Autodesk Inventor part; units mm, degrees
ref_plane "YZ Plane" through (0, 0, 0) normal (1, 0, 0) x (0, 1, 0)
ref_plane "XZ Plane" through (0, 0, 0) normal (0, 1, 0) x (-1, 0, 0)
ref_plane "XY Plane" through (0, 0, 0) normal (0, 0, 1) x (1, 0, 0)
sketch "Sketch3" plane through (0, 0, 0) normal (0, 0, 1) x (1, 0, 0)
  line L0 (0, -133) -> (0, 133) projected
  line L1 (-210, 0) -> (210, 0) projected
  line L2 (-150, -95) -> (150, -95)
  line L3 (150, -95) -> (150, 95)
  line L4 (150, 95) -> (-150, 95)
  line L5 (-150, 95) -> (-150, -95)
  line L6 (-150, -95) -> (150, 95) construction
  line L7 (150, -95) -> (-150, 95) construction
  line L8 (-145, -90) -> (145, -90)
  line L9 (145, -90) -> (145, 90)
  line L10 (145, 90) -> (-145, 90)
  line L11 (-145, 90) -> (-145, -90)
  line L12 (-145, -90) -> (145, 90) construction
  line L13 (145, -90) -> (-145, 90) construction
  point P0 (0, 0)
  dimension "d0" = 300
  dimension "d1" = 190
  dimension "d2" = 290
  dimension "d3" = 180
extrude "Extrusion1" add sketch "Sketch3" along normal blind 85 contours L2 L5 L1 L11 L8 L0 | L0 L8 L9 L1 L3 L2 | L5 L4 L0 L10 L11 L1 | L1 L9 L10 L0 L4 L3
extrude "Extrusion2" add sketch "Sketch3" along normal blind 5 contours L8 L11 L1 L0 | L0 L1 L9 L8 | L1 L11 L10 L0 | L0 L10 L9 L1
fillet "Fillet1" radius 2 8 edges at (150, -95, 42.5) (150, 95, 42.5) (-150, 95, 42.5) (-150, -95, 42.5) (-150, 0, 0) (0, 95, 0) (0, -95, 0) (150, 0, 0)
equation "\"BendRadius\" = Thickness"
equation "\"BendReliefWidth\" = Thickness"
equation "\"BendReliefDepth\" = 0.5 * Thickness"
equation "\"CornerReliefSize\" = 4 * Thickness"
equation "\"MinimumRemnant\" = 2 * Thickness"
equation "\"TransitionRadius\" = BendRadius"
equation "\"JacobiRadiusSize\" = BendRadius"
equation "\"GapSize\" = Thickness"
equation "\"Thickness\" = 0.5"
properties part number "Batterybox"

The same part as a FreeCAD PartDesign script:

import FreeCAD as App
import Part
import Sketcher
from FreeCAD import Vector
Q = App.Units.Quantity


def edges_at(feature, points):
    """Names of the edges that pass closest to the given points."""
    edges = feature.Shape.Edges
    near = lambda p: min(range(len(edges)), key=lambda i: edges[i].distToShape(Part.Vertex(*p))[0])
    return sorted({f"Edge{near(p) + 1}" for p in points})


def add_polygon(sketch, points):
    """Adds a closed chain of lines whose ends are joined by coincident constraints."""
    first, n = sketch.GeometryCount, len(points)
    for a, b in zip(points, points[1:] + points[:1]):
        sketch.addGeometry(Part.LineSegment(App.Vector(*a, 0), App.Vector(*b, 0)), False)
    for i in range(n):
        sketch.addConstraint(Sketcher.Constraint("Coincident", first + i, 2, first + (i + 1) % n, 1))

doc = App.newDocument("Part")
body = doc.addObject("PartDesign::Body", "Body")

# Sketch on XY plane
sketch1 = doc.addObject("Sketcher::SketchObject", "Sketch")
body.addObject(sketch1)
sketch1.AttachmentSupport = (doc.XY_Plane, [""])
sketch1.MapMode = "FlatFace"
add_polygon(sketch1, [(-150, -95), (150, -95), (150, 95), (-150, 95)])  # lines 0-3
add_polygon(sketch1, [(-145, -90), (-145, 90), (145, 90), (145, -90)])  # lines 4-7
sketch1.addConstraint([
    Sketcher.Constraint("Horizontal", 0),
    Sketcher.Constraint("Vertical", 1),
    Sketcher.Constraint("Horizontal", 2),
    Sketcher.Constraint("Vertical", 3),
    Sketcher.Constraint("Vertical", 4),
    Sketcher.Constraint("Horizontal", 5),
    Sketcher.Constraint("Vertical", 6),
    Sketcher.Constraint("Horizontal", 7),
    Sketcher.Constraint("Symmetric", 0, 2, 2, 2, -1, 1),
    Sketcher.Constraint("Symmetric", 4, 2, 6, 2, -1, 1),
    Sketcher.Constraint("DistanceX", 0, 1, 0, 2, Q("300 mm")),
    Sketcher.Constraint("DistanceX", 5, 1, 5, 2, Q("290 mm")),
    Sketcher.Constraint("DistanceY", 1, 1, 1, 2, Q("190 mm")),
    Sketcher.Constraint("DistanceY", 4, 1, 4, 2, Q("180 mm")),
])
pad1 = doc.addObject("PartDesign::Pad", "Pad")
body.addObject(pad1)
pad1.Profile = sketch1
pad1.Length = 85

# Sketch on XY plane
sketch2 = doc.addObject("Sketcher::SketchObject", "Sketch001")
body.addObject(sketch2)
sketch2.AttachmentSupport = (doc.XY_Plane, [""])
sketch2.MapMode = "FlatFace"
add_polygon(sketch2, [(-145, -90), (145, -90), (145, 90), (-145, 90)])  # lines 0-3
sketch2.addConstraint([
    Sketcher.Constraint("Horizontal", 0),
    Sketcher.Constraint("Vertical", 1),
    Sketcher.Constraint("Horizontal", 2),
    Sketcher.Constraint("Vertical", 3),
    Sketcher.Constraint("Symmetric", 0, 2, 2, 2, -1, 1),
    Sketcher.Constraint("DistanceX", 0, 1, 0, 2, Q("290 mm")),
    Sketcher.Constraint("DistanceY", 1, 1, 1, 2, Q("180 mm")),
])
pad2 = doc.addObject("PartDesign::Pad", "Pad001")
body.addObject(pad2)
pad2.Profile = sketch2
pad2.Length = 5
doc.recompute()

fillet = doc.addObject("PartDesign::Fillet", "Fillet")
body.addObject(fillet)
fillet.Base = (pad2, edges_at(pad2, [
    (150, -95, 42.5),
    (150, 95, 42.5),
    (-150, 95, 42.5),
    (-150, -95, 42.5),
    (-150, 0, 0),
    (0, 95, 0),
    (0, -95, 0),
    (150, 0, 0),
]))
fillet.Radius = 2

doc.recompute()
